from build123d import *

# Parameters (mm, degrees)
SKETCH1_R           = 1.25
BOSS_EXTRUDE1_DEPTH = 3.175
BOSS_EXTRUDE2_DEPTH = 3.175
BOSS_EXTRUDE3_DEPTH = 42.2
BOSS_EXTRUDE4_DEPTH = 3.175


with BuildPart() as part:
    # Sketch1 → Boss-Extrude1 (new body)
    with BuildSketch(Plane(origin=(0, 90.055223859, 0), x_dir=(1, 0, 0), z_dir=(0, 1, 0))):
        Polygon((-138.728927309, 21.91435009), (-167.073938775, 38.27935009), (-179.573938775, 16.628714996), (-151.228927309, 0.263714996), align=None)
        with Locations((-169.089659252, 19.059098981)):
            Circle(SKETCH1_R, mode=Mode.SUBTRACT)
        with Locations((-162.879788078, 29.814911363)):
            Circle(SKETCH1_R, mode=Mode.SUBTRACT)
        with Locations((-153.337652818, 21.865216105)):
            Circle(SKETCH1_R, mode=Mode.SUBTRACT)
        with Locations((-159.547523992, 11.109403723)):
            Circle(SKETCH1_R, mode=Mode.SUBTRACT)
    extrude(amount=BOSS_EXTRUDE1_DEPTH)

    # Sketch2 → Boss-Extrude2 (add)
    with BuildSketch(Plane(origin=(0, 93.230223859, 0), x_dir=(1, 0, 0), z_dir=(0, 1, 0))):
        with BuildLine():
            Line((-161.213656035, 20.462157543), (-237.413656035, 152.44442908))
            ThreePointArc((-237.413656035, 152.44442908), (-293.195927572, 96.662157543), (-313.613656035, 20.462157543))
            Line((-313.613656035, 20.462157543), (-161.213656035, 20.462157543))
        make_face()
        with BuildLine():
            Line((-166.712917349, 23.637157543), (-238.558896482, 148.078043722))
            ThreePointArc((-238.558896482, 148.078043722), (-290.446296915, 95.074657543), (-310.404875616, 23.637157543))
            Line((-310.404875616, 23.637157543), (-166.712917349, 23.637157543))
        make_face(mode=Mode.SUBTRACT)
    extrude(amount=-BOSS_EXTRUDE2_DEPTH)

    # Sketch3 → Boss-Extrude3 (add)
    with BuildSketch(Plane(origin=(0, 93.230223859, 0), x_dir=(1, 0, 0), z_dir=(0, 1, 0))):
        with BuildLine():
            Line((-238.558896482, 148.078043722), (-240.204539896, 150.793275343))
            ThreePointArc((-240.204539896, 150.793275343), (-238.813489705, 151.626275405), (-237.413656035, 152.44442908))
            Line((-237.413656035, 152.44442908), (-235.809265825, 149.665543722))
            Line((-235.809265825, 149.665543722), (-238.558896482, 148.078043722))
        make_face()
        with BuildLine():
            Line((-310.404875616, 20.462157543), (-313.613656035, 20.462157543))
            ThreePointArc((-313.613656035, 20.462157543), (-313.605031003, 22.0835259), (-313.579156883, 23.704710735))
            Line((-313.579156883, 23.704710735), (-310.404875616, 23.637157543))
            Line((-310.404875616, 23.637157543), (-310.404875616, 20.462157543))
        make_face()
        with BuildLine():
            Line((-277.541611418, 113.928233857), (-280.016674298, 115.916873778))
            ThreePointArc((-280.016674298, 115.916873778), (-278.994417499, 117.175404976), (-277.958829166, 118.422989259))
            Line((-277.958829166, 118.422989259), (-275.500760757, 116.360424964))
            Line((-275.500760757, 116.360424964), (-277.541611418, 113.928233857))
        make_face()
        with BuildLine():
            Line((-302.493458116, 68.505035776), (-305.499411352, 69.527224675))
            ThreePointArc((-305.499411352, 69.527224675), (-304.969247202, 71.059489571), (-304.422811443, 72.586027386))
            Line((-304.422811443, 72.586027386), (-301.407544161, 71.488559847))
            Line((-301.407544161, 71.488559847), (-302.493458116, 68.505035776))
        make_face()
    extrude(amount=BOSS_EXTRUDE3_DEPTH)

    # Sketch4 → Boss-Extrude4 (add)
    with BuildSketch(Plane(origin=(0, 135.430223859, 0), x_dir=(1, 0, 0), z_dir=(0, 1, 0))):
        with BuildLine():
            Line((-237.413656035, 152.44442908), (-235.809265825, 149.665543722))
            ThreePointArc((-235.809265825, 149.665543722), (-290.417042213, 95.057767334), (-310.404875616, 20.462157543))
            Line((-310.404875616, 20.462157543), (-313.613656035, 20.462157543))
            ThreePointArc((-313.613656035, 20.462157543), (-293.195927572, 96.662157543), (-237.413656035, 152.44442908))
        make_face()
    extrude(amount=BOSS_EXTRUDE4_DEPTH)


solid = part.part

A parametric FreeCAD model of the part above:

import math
import FreeCAD as App
import Part
import Sketcher

V = App.Vector
Q = App.Units.Quantity


def add_polygon(sketch, points):
    """Adds a closed chain of lines whose ends are joined by coincident constraints."""
    first, n = sketch.GeometryCount, len(points)
    for a, b in zip(points, points[1:] + points[:1]):
        sketch.addGeometry(Part.LineSegment(App.Vector(*a, 0), App.Vector(*b, 0)), False)
    for i in range(n):
        sketch.addConstraint(Sketcher.Constraint("Coincident", first + i, 2, first + (i + 1) % n, 1))

doc = App.newDocument("Part")
body = doc.addObject("PartDesign::Body", "Body")

# Sketch on XZ plane
sketch1 = body.newObject("Sketcher::SketchObject", "Sketch")
sketch1.AttachmentSupport = (doc.getObject("XZ_Plane"), [""])
sketch1.MapMode = "FlatFace"
sketch1.AttachmentOffset = App.Placement(V(0, 0, -90.055224), App.Rotation())
add_polygon(sketch1, [(-138.7, -21.9), (-167.1, -38.3), (-179.6, -16.6), (-151.2, -0.3)])  # lines 0-3
sketch1.addGeometry(Part.Circle(V(-169.1, -19.1, 0), V(0, 0, 1), 1.2), False)  # 4
sketch1.addGeometry(Part.Circle(V(-159.5, -11.1, 0), V(0, 0, 1), 1.2), False)  # 5
sketch1.addGeometry(Part.Circle(V(-162.9, -29.8, 0), V(0, 0, 1), 1.2), False)  # 6
sketch1.addGeometry(Part.Circle(V(-153.3, -21.9, 0), V(0, 0, 1), 1.2), False)  # 7
sketch1.addConstraint([
    Sketcher.Constraint("Equal", 4, 5),
    Sketcher.Constraint("Equal", 5, 6),
    Sketcher.Constraint("Equal", 6, 7),
    Sketcher.Constraint("Perpendicular", 0, 1),
    Sketcher.Constraint("Perpendicular", 1, 2),
    Sketcher.Constraint("Perpendicular", 2, 3),
    Sketcher.Constraint("Angle", 0, Q("-150 deg")),
    Sketcher.Constraint("Diameter", 4, Q("2.5 mm")),
    Sketcher.Constraint("Distance", 0, Q("32.73 mm")),
    Sketcher.Constraint("Distance", 1, Q("25 mm")),
    Sketcher.Constraint("DistanceY", 4, 3, -1, 1, Q("19.059099 mm")),
    Sketcher.Constraint("DistanceY", 7, 3, 1, 2, Q("5.236501 mm")),
    Sketcher.Constraint("DistanceX", 4, 3, -1, 1, Q("169.089659 mm")),
    Sketcher.Constraint("DistanceX", 6, 3, -1, 1, Q("162.879788 mm")),
    Sketcher.Constraint("DistanceY", 6, 3, -1, 1, Q("29.814911 mm")),
    Sketcher.Constraint("DistanceX", 0, 2, -1, 1, Q("167.073939 mm")),
    Sketcher.Constraint("DistanceY", 0, 2, -1, 1, Q("38.27935 mm")),
    Sketcher.Constraint("DistanceX", 5, 3, 7, 3, Q("6.209871 mm")),
    Sketcher.Constraint("DistanceY", 1, 2, 5, 3, Q("5.519311 mm")),
    Sketcher.Constraint("DistanceX", 5, 3, -1, 1, Q("159.547524 mm")),
])
pad1 = body.newObject("PartDesign::Pad", "Pad")
pad1.Profile = sketch1
pad1.Length = Q("0.125 in")
pad1.Reversed = True

# Sketch on XZ plane
sketch2 = body.newObject("Sketcher::SketchObject", "Sketch001")
sketch2.AttachmentSupport = (doc.getObject("XZ_Plane"), [""])
sketch2.MapMode = "FlatFace"
sketch2.AttachmentOffset = App.Placement(V(0, 0, -93.230224), App.Rotation())
sketch2.addGeometry([
    Part.LineSegment(V(-161, -20, 0), V(-237, -152, 0)),  # 0
    Part.ArcOfCircle(Part.Circle(V(-161, -20, 0), V(0, 0, 1), 152), math.radians(180), math.radians(240)),  # 1
    Part.LineSegment(V(-314, -20, 0), V(-161, -20, 0)),  # 2
    Part.LineSegment(V(-239, -148, 0), V(-167, -24, 0)),  # 3
    Part.LineSegment(V(-167, -24, 0), V(-310, -24, 0)),  # 4
    Part.ArcOfCircle(Part.Circle(V(-161, -20, 0), V(0, 0, 1), 149), math.radians(-179), math.radians(-121)),  # 5
], False)
sketch2.addConstraint([
    Sketcher.Constraint("Coincident", 0, 2, 1, 2),
    Sketcher.Constraint("Coincident", 1, 1, 2, 1),
    Sketcher.Constraint("Coincident", 2, 2, 0, 1),
    Sketcher.Constraint("Coincident", 3, 2, 4, 1),
    Sketcher.Constraint("Coincident", 4, 2, 5, 1),
    Sketcher.Constraint("Coincident", 5, 2, 3, 1),
    Sketcher.Constraint("Horizontal", 2),
    Sketcher.Constraint("Horizontal", 4),
    Sketcher.Constraint("Coincident", 5, 3, 1, 3),
    Sketcher.Constraint("Coincident", 2, 2, 1, 3),
    Sketcher.Constraint("Parallel", 0, 3),
    Sketcher.Constraint("Radius", 1, Q("6 in")),
    Sketcher.Constraint("Angle", 0, Q("-120 deg")),
    Sketcher.Constraint("Radius", 5, Q("5.875 in")),
    Sketcher.Constraint("DistanceY", 3, 2, 1, 3, Q("0.125 in")),
    Sketcher.Constraint("DistanceX", 4, 2, 4, 1, Q("143.691958 mm")),
    Sketcher.Constraint("DistanceY", 0, 2, -1, 1, Q("152.444429 mm")),
    Sketcher.Constraint("DistanceX", 1, 3, -1, 1, Q("161.213656 mm")),
])
pad2 = body.newObject("PartDesign::Pad", "Pad001")
pad2.Profile = sketch2
pad2.Length = Q("0.125 in")

# Sketch on XZ plane
sketch3 = body.newObject("Sketcher::SketchObject", "Sketch002")
sketch3.AttachmentSupport = (doc.getObject("XZ_Plane"), [""])
sketch3.MapMode = "FlatFace"
sketch3.AttachmentOffset = App.Placement(V(0, 0, -93.230224), App.Rotation())
sketch3.addGeometry([
    Part.LineSegment(V(-240.2, -150.8, 0), V(-238.6, -148.1, 0)),  # 0
    Part.LineSegment(V(-238.6, -148.1, 0), V(-235.8, -149.7, 0)),  # 1
    Part.LineSegment(V(-235.8, -149.7, 0), V(-237.4, -152.4, 0)),  # 2
    Part.ArcOfCircle(Part.Circle(V(-161.2, -20.5, 0), V(0, 0, 1), 152.4), math.radians(-121.22), math.radians(-120)),  # 3
    Part.LineSegment(V(-313.6, -20.5, 0), V(-310.4, -20.5, 0)),  # 4
    Part.LineSegment(V(-310.4, -20.5, 0), V(-310.4, -23.6, 0)),  # 5
    Part.LineSegment(V(-310.4, -23.6, 0), V(-313.6, -23.7, 0)),  # 6
    Part.ArcOfCircle(Part.Circle(V(-161.2, -20.5, 0), V(0, 0, 1), 152.4), math.radians(180), math.radians(181.22)),  # 7
    Part.LineSegment(V(-280, -115.9, 0), V(-277.5, -113.9, 0)),  # 8
    Part.LineSegment(V(-277.5, -113.9, 0), V(-275.5, -116.4, 0)),  # 9
    Part.LineSegment(V(-275.5, -116.4, 0), V(-278, -118.4, 0)),  # 10
    Part.ArcOfCircle(Part.Circle(V(-161.2, -20.5, 0), V(0, 0, 1), 152.4), math.radians(-141.22), math.radians(-140)),  # 11
    Part.LineSegment(V(-305.5, -69.5, 0), V(-302.5, -68.5, 0)),  # 12
    Part.LineSegment(V(-302.5, -68.5, 0), V(-301.4, -71.5, 0)),  # 13
    Part.LineSegment(V(-301.4, -71.5, 0), V(-304.4, -72.6, 0)),  # 14
    Part.ArcOfCircle(Part.Circle(V(-161.2, -20.5, 0), V(0, 0, 1), 152.4), math.radians(-161.22), math.radians(-160)),  # 15
], False)
sketch3.addConstraint([
    Sketcher.Constraint("Coincident", 0, 2, 1, 1),
    Sketcher.Constraint("Coincident", 1, 2, 2, 1),
    Sketcher.Constraint("Coincident", 2, 2, 3, 2),
    Sketcher.Constraint("Coincident", 3, 1, 0, 1),
    Sketcher.Constraint("Coincident", 4, 2, 5, 1),
    Sketcher.Constraint("Coincident", 5, 2, 6, 1),
    Sketcher.Constraint("Coincident", 6, 2, 7, 2),
    Sketcher.Constraint("Coincident", 7, 1, 4, 1),
    Sketcher.Constraint("Coincident", 8, 2, 9, 1),
    Sketcher.Constraint("Coincident", 9, 2, 10, 1),
    Sketcher.Constraint("Coincident", 10, 2, 11, 2),
    Sketcher.Constraint("Coincident", 11, 1, 8, 1),
    Sketcher.Constraint("Coincident", 12, 2, 13, 1),
    Sketcher.Constraint("Coincident", 13, 2, 14, 1),
    Sketcher.Constraint("Coincident", 14, 2, 15, 2),
    Sketcher.Constraint("Coincident", 15, 1, 12, 1),
    Sketcher.Constraint("Horizontal", 4),
    Sketcher.Constraint("Vertical", 5),
    Sketcher.Constraint("Coincident", 7, 3, 3, 3),
    Sketcher.Constraint("Coincident", 11, 3, 3, 3),
    Sketcher.Constraint("Coincident", 15, 3, 3, 3),
    Sketcher.Constraint("Equal", 3, 7),
    Sketcher.Constraint("Equal", 7, 15),
    Sketcher.Constraint("Perpendicular", 1, 2),
    Sketcher.Constraint("Perpendicular", 9, 10),
    Sketcher.Constraint("Perpendicular", 13, 14),
    Sketcher.Constraint("Horizontal", 15, 3, 4, 2),
    Sketcher.Constraint("Equal", 0, 1),
    Sketcher.Constraint("Equal", 1, 6),
    Sketcher.Constraint("Equal", 6, 8),
    Sketcher.Constraint("Equal", 8, 9),
    Sketcher.Constraint("Equal", 2, 10),
    Sketcher.Constraint("Equal", 9, 12),
    Sketcher.Constraint("Equal", 12, 13),
    Sketcher.Constraint("Equal", 10, 14),
    Sketcher.Constraint("Radius", 3, Q("5.9999999 in")),
    Sketcher.Constraint("Angle", 1, Q("-30 deg")),
    Sketcher.Constraint("Angle", 9, Q("-50 deg")),
    Sketcher.Constraint("Angle", 13, Q("-70 deg")),
    Sketcher.Constraint("DistanceX", 2, 2, 15, 3, Q("2.9999999 in")),
    Sketcher.Constraint("DistanceY", 5, 2, 5, 1, Q("0.125 in")),
    Sketcher.Constraint("Distance", 0, Q("0.125 in")),
    Sketcher.Constraint("Radius", 11, Q("152.399989 mm")),
    Sketcher.Constraint("DistanceX", 7, 1, 6, 2, Q("0.034499 mm")),
    Sketcher.Constraint("DistanceY", 3, 1, 11, 1, Q("34.876402 mm")),
    Sketcher.Constraint("DistanceX", 15, 1, 14, 2, Q("1.0766 mm")),
    Sketcher.Constraint("DistanceY", 3, 3, -1, 1, Q("20.462159 mm")),
    Sketcher.Constraint("DistanceX", 7, 3, -1, 1, Q("161.213659 mm")),
    Sketcher.Constraint("DistanceX", 3, 1, -1, 1, Q("240.20454 mm")),
])
pad3 = body.newObject("PartDesign::Pad", "Pad002")
pad3.Profile = sketch3
pad3.Length = 42.2
pad3.Reversed = True

# Sketch on XZ plane
sketch4 = body.newObject("Sketcher::SketchObject", "Sketch003")
sketch4.AttachmentSupport = (doc.getObject("XZ_Plane"), [""])
sketch4.MapMode = "FlatFace"
sketch4.AttachmentOffset = App.Placement(V(0, 0, -135.430224), App.Rotation())
sketch4.addGeometry([
    Part.LineSegment(V(-235.8, -149.7, 0), V(-237.4, -152.4, 0)),
    Part.ArcOfCircle(Part.Circle(V(-161.2, -20.5, 0), V(0, 0, 1), 152.4), math.radians(180), math.radians(240)),
    Part.LineSegment(V(-313.6, -20.5, 0), V(-310.4, -20.5, 0)),
    Part.ArcOfCircle(Part.Circle(V(-161.2, -20.5, 0), V(0, 0, 1), 149.2), math.radians(-180), math.radians(-120)),
], False)
sketch4.addConstraint([
    Sketcher.Constraint("Coincident", 0, 2, 1, 2),
    Sketcher.Constraint("Coincident", 1, 1, 2, 1),
    Sketcher.Constraint("Coincident", 2, 2, 3, 1),
    Sketcher.Constraint("Coincident", 3, 2, 0, 1),
    Sketcher.Constraint("Horizontal", 2),
    Sketcher.Constraint("Coincident", 3, 3, 1, 3),
    Sketcher.Constraint("Horizontal", 3, 3, 1, 1),
    Sketcher.Constraint("Radius", 1, Q("6 in")),
    Sketcher.Constraint("Angle", 0, Q("-120 deg")),
    Sketcher.Constraint("DistanceX", 0, 2, 1, 3, Q("3 in")),
    Sketcher.Constraint("Radius", 3, Q("149.19122 mm")),
    Sketcher.Constraint("DistanceY", 0, 2, -1, 1, Q("152.444429 mm")),
    Sketcher.Constraint("DistanceX", 1, 3, -1, 1, Q("161.213656 mm")),
])
pad4 = body.newObject("PartDesign::Pad", "Pad003")
pad4.Profile = sketch4
pad4.Length = Q("0.125 in")
pad4.Reversed = True

doc.recompute()
